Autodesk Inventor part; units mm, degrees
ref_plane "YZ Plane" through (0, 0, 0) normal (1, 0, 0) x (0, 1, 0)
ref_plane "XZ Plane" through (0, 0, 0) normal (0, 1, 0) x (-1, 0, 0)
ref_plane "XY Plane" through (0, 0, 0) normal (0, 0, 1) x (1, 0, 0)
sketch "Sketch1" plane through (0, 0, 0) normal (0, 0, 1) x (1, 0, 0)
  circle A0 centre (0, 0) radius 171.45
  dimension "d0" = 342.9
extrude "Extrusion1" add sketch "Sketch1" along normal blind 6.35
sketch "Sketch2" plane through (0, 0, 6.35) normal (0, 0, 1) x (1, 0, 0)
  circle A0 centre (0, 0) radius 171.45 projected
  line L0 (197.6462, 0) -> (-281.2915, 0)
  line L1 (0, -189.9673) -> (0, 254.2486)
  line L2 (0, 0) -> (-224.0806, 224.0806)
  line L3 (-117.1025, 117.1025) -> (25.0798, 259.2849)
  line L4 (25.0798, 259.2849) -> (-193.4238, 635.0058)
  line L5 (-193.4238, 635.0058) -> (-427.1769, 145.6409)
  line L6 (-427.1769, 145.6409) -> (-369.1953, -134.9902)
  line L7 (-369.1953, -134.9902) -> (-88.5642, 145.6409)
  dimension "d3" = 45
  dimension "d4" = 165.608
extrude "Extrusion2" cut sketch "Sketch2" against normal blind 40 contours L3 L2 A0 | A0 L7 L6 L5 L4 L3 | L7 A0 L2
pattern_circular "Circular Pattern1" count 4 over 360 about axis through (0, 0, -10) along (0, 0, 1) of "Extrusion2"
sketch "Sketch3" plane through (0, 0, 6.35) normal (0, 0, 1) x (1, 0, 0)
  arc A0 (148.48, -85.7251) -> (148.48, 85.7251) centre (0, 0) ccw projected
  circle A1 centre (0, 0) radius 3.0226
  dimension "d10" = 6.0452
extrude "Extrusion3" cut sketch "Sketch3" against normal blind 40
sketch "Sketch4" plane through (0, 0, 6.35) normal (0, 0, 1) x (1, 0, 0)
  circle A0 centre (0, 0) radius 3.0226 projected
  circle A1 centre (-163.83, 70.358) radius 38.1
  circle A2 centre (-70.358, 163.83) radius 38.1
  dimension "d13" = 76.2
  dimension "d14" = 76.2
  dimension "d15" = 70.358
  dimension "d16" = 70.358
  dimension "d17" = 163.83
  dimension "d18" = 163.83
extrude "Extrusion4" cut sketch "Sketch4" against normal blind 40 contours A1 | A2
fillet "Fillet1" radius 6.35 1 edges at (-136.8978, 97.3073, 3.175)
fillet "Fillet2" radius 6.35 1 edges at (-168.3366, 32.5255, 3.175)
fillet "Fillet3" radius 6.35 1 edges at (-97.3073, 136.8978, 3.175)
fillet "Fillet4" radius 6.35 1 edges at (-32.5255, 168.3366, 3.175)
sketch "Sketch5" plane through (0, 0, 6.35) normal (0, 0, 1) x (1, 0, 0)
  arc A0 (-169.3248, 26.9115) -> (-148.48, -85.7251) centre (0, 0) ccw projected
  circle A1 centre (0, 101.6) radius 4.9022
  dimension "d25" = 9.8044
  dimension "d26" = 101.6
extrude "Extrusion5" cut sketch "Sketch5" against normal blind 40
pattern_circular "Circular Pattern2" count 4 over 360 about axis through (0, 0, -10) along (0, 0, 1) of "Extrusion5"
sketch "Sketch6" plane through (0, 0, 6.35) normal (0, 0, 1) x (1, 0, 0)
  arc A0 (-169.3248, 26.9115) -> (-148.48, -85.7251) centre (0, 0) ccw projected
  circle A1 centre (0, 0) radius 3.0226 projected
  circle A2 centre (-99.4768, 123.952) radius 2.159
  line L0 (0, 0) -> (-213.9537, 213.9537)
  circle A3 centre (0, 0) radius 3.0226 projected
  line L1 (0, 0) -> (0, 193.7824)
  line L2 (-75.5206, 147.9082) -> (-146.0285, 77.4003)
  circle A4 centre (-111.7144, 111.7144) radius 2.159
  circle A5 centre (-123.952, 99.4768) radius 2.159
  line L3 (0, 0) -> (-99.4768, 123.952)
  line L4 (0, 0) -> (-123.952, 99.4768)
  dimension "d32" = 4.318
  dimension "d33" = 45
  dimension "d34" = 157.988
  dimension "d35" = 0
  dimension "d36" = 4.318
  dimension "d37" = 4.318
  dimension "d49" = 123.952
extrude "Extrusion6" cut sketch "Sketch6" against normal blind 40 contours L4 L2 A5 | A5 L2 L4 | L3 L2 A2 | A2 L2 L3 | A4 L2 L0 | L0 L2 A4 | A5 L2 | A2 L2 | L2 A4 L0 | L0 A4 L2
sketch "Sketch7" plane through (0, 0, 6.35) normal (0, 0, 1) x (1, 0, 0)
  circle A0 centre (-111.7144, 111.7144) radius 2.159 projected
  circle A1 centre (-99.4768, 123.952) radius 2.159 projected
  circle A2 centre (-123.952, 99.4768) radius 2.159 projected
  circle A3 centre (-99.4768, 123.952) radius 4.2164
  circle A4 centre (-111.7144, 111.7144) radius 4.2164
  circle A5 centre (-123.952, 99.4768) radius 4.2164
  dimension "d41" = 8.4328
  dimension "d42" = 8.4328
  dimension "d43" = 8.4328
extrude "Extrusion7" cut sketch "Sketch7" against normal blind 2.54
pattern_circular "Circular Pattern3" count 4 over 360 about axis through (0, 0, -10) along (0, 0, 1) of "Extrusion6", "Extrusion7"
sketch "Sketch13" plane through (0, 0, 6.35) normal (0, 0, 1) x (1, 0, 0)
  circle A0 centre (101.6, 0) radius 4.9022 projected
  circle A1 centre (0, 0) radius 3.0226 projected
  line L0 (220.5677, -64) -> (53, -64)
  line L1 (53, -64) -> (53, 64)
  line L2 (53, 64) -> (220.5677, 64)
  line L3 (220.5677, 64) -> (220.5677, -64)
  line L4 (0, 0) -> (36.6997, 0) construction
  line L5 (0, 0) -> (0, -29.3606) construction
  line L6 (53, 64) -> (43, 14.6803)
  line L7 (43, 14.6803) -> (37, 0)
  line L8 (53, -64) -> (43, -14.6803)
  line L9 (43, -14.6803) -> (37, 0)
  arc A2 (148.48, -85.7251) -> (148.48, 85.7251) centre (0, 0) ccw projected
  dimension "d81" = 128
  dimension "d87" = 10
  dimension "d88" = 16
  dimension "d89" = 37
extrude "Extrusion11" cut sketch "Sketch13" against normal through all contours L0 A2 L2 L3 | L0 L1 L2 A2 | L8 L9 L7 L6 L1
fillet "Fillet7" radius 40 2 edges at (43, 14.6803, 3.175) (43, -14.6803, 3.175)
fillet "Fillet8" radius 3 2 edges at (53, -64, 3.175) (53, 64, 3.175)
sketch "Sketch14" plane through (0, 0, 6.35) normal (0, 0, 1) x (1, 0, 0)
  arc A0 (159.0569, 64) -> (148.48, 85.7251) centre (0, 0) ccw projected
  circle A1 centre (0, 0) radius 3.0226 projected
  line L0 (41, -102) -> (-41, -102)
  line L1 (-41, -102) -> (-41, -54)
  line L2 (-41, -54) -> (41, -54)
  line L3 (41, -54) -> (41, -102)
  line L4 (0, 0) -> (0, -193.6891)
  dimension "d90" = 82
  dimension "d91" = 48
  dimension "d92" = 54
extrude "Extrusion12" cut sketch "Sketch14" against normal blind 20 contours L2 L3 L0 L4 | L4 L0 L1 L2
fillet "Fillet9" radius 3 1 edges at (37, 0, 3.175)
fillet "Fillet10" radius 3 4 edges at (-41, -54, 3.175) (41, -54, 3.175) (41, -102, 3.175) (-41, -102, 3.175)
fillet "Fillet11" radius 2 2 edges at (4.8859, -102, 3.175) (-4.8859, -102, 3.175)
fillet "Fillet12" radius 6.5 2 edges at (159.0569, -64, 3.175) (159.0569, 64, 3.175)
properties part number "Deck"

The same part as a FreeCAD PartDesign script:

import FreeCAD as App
import Part
import Sketcher

V = App.Vector
Q = App.Units.Quantity


def edges_at(feature, points):
    """Names of the edges that pass closest to the given points."""
    edges = feature.Shape.Edges
    near = lambda p: min(range(len(edges)), key=lambda i: edges[i].distToShape(Part.Vertex(*p))[0])
    return sorted({f"Edge{near(p) + 1}" for p in points})

doc = App.newDocument("Part")
body = doc.addObject("PartDesign::Body", "Body")

sketch1 = body.newObject("Sketcher::SketchObject", "Sketch")
sketch1.AttachmentSupport = (doc.getObject("XY_Plane"), [""])
sketch1.MapMode = "FlatFace"
sketch1.addGeometry(Part.Circle(V(0, 0, 0), V(0, 0, 1), 171.45), False)
sketch1.addConstraint([
    Sketcher.Constraint("Coincident", 0, 3, -1, 1),
    Sketcher.Constraint("Diameter", 0, Q("13.5 in")),
])
pad1 = body.newObject("PartDesign::Pad", "Pad")
pad1.Profile = sketch1
pad1.Length = Q("0.25 in")

sketch2 = body.newObject("Sketcher::SketchObject", "Sketch001")
sketch2.AttachmentSupport = (doc.getObject("XY_Plane"), [""])
sketch2.MapMode = "FlatFace"
sketch2.AttachmentOffset = App.Placement(V(0, 0, 0.25 * 25.4), App.Rotation())
sketch2.addGeometry([
    Part.LineSegment(V(25.0798, 259.2849, 0), V(-193.4238, 635.0058, 0)),
    Part.LineSegment(V(-193.4238, 635.0058, 0), V(-427.1769, 145.6409, 0)),
    Part.LineSegment(V(-427.1769, 145.6409, 0), V(-369.1953, -134.9902, 0)),
    Part.LineSegment(V(-369.1953, -134.9902, 0), V(-117.1025, 117.1025, 0)),
    Part.LineSegment(V(-117.1025, 117.1025, 0), V(25.0798, 259.2849, 0)),
], False)
sketch2.addConstraint([
    Sketcher.Constraint("Coincident", 0, 2, 1, 1),
    Sketcher.Constraint("Coincident", 1, 2, 2, 1),
    Sketcher.Constraint("Coincident", 2, 2, 3, 1),
    Sketcher.Constraint("Coincident", 3, 2, 4, 1),
    Sketcher.Constraint("Coincident", 4, 2, 0, 1),
    Sketcher.Constraint("Parallel", 3, 4),
    Sketcher.Constraint("Angle", 3, Q("45 deg")),
    Sketcher.Constraint("Angle", 0, Q("120.1805 deg")),
    Sketcher.Constraint("DistanceX", 1, 2, -1, 1, Q("16.818 in")),
    Sketcher.Constraint("DistanceX", 0, 2, -1, 1, Q("7.6151 in")),
    Sketcher.Constraint("DistanceY", -1, 1, 1, 2, Q("5.7339 in")),
    Sketcher.Constraint("DistanceX", -1, 1, 4, 2, Q("0.9874 in")),
    Sketcher.Constraint("DistanceY", 2, 2, 0, 2, Q("30.3148 in")),
    Sketcher.Constraint("DistanceY", 2, 2, 3, 2, Q("9.9249 in")),
    Sketcher.Constraint("Distance", 1, 542.327),
])
pocket1 = body.newObject("PartDesign::Pocket", "Pocket")
pocket1.Profile = sketch2
pocket1.Length = Q("1.5748031 in")
doc.recompute()

polarpattern = body.newObject("PartDesign::PolarPattern", "PolarPattern")
polarpattern.Originals = [pocket1]
polarpattern.Axis = (doc.getObject("Z_Axis"), [""])
polarpattern.Angle = 360
polarpattern.Occurrences = 4
body.Tip = polarpattern

sketch3 = body.newObject("Sketcher::SketchObject", "Sketch002")
sketch3.AttachmentSupport = (doc.getObject("XY_Plane"), [""])
sketch3.MapMode = "FlatFace"
sketch3.AttachmentOffset = App.Placement(V(0, 0, 0.25 * 25.4), App.Rotation())
sketch3.addGeometry(Part.Circle(V(0, 0, 0), V(0, 0, 1), 3.0226), False)
sketch3.addConstraint([
    Sketcher.Constraint("Coincident", 0, 3, -1, 1),
    Sketcher.Constraint("Diameter", 0, Q("0.238 in")),
])
pocket2 = body.newObject("PartDesign::Pocket", "Pocket001")
pocket2.Profile = sketch3
pocket2.Length = Q("1.5748031 in")

sketch4 = body.newObject("Sketcher::SketchObject", "Sketch003")
sketch4.AttachmentSupport = (doc.getObject("XY_Plane"), [""])
sketch4.MapMode = "FlatFace"
sketch4.AttachmentOffset = App.Placement(V(0, 0, 0.25 * 25.4), App.Rotation())
sketch4.addGeometry([
    Part.Circle(V(-163.83, 70.358, 0), V(0, 0, 1), 38.1),
    Part.Circle(V(-70.358, 163.83, 0), V(0, 0, 1), 38.1),
], False)
sketch4.addConstraint([
    Sketcher.Constraint("Equal", 0, 1),
    Sketcher.Constraint("Diameter", 0, Q("3 in")),
    Sketcher.Constraint("DistanceX", 0, 3, -1, 1, Q("6.45 in")),
    Sketcher.Constraint("DistanceY", -1, 1, 0, 3, Q("2.77 in")),
    Sketcher.Constraint("DistanceX", 1, 3, -1, 1, Q("2.77 in")),
    Sketcher.Constraint("DistanceY", -1, 1, 1, 3, Q("6.45 in")),
])
pocket3 = body.newObject("PartDesign::Pocket", "Pocket002")
pocket3.Profile = sketch4
pocket3.Length = Q("1.5748031 in")
doc.recompute()

fillet = body.newObject("PartDesign::Fillet", "Fillet")
fillet.Base = (pocket3, edges_at(pocket3, [(-136.898, 97.307, 3.175)]))
fillet.Radius = Q("0.25 in")
doc.recompute()

fillet2 = body.newObject("PartDesign::Fillet", "Fillet001")
fillet2.Base = (fillet, edges_at(fillet, [(-168.337, 32.526, 3.175)]))
fillet2.Radius = Q("0.25 in")
doc.recompute()

fillet3 = body.newObject("PartDesign::Fillet", "Fillet002")
fillet3.Base = (fillet2, edges_at(fillet2, [(-97.307, 136.898, 3.175)]))
fillet3.Radius = Q("0.25 in")
doc.recompute()

fillet4 = body.newObject("PartDesign::Fillet", "Fillet003")
fillet4.Base = (fillet3, edges_at(fillet3, [(-32.526, 168.337, 3.175)]))
fillet4.Radius = Q("0.25 in")

sketch5 = body.newObject("Sketcher::SketchObject", "Sketch004")
sketch5.AttachmentSupport = (doc.getObject("XY_Plane"), [""])
sketch5.MapMode = "FlatFace"
sketch5.AttachmentOffset = App.Placement(V(0, 0, 0.25 * 25.4), App.Rotation())
sketch5.addGeometry(Part.Circle(V(0, 101.6, 0), V(0, 0, 1), 4.9022), False)
sketch5.addConstraint([
    Sketcher.Constraint("PointOnObject", 0, 3, -2),
    Sketcher.Constraint("Diameter", 0, Q("0.386 in")),
    Sketcher.Constraint("DistanceY", -1, 1, 0, 3, Q("4 in")),
])
pocket4 = body.newObject("PartDesign::Pocket", "Pocket003")
pocket4.Profile = sketch5
pocket4.Length = Q("1.5748031 in")
doc.recompute()

polarpattern2 = body.newObject("PartDesign::PolarPattern", "PolarPattern001")
polarpattern2.Originals = [pocket4]
polarpattern2.Axis = (doc.getObject("Z_Axis"), [""])
polarpattern2.Angle = 360
polarpattern2.Occurrences = 4
body.Tip = polarpattern2

sketch6 = body.newObject("Sketcher::SketchObject", "Sketch005")
sketch6.AttachmentSupport = (doc.getObject("XY_Plane"), [""])
sketch6.MapMode = "FlatFace"
sketch6.AttachmentOffset = App.Placement(V(0, 0, 0.25 * 25.4), App.Rotation())
sketch6.addGeometry([
    Part.Circle(V(-123.952, 99.4768, 0), V(0, 0, 1), 2.159),
    Part.Circle(V(-99.4768, 123.952, 0), V(0, 0, 1), 2.159),
    Part.Circle(V(-111.7144, 111.7144, 0), V(0, 0, 1), 2.159),
], False)
sketch6.addConstraint([
    Sketcher.Constraint("Equal", 0, 1),
    Sketcher.Constraint("Equal", 1, 2),
    Sketcher.Constraint("Diameter", 0, Q("0.17 in")),
    Sketcher.Constraint("DistanceX", 0, 3, -1, 1, Q("4.88 in")),
    Sketcher.Constraint("DistanceY", -1, 1, 1, 3, Q("4.88 in")),
    Sketcher.Constraint("DistanceY", -1, 1, 0, 3, Q("3.9164 in")),
    Sketcher.Constraint("DistanceX", 1, 3, -1, 1, Q("3.9164 in")),
    Sketcher.Constraint("DistanceX", 2, 3, -1, 1, Q("4.3982 in")),
    Sketcher.Constraint("DistanceY", -1, 1, 2, 3, Q("4.3982 in")),
])
pocket5 = body.newObject("PartDesign::Pocket", "Pocket004")
pocket5.Profile = sketch6
pocket5.Length = Q("1.5748031 in")

sketch7 = body.newObject("Sketcher::SketchObject", "Sketch006")
sketch7.AttachmentSupport = (doc.getObject("XY_Plane"), [""])
sketch7.MapMode = "FlatFace"
sketch7.AttachmentOffset = App.Placement(V(0, 0, 0.25 * 25.4), App.Rotation())
sketch7.addGeometry([
    Part.Circle(V(-99.4768, 123.952, 0), V(0, 0, 1), 4.2164),
    Part.Circle(V(-99.4768, 123.952, 0), V(0, 0, 1), 2.159),
    Part.Circle(V(-111.7144, 111.7144, 0), V(0, 0, 1), 4.2164),
    Part.Circle(V(-111.7144, 111.7144, 0), V(0, 0, 1), 2.159),
    Part.Circle(V(-123.952, 99.4768, 0), V(0, 0, 1), 4.2164),
    Part.Circle(V(-123.952, 99.4768, 0), V(0, 0, 1), 2.159),
], False)
sketch7.addConstraint([
    Sketcher.Constraint("Coincident", 1, 3, 0, 3),
    Sketcher.Constraint("Coincident", 3, 3, 2, 3),
    Sketcher.Constraint("Coincident", 5, 3, 4, 3),
    Sketcher.Constraint("Equal", 0, 2),
    Sketcher.Constraint("Equal", 1, 3),
    Sketcher.Constraint("Equal", 2, 4),
    Sketcher.Constraint("Equal", 3, 5),
    Sketcher.Constraint("Diameter", 0, Q("0.332 in")),
    Sketcher.Constraint("Diameter", 1, Q("0.17 in")),
    Sketcher.Constraint("DistanceY", -1, 1, 0, 3, Q("4.88 in")),
    Sketcher.Constraint("DistanceX", 4, 3, -1, 1, Q("4.88 in")),
    Sketcher.Constraint("DistanceX", 0, 3, -1, 1, Q("3.9164 in")),
    Sketcher.Constraint("DistanceX", 2, 3, -1, 1, Q("4.3982 in")),
    Sketcher.Constraint("DistanceY", -1, 1, 2, 3, Q("4.3982 in")),
    Sketcher.Constraint("DistanceY", -1, 1, 4, 3, Q("3.9164 in")),
])
pocket6 = body.newObject("PartDesign::Pocket", "Pocket005")
pocket6.Profile = sketch7
pocket6.Length = Q("0.1 in")
doc.recompute()

polarpattern3 = body.newObject("PartDesign::PolarPattern", "PolarPattern002")
polarpattern3.Originals = [pocket5, pocket6]
polarpattern3.Axis = (doc.getObject("Z_Axis"), [""])
polarpattern3.Angle = 360
polarpattern3.Occurrences = 4
body.Tip = polarpattern3

sketch8 = body.newObject("Sketcher::SketchObject", "Sketch007")
sketch8.AttachmentSupport = (doc.getObject("XY_Plane"), [""])
sketch8.MapMode = "FlatFace"
sketch8.AttachmentOffset = App.Placement(V(0, 0, 0.25 * 25.4), App.Rotation())
sketch8.addGeometry([
    Part.LineSegment(V(220.5677, -64, 0), V(220.5677, 64, 0)),
    Part.LineSegment(V(220.5677, 64, 0), V(53, 64, 0)),
    Part.LineSegment(V(53, 64, 0), V(43, 14.6803, 0)),
    Part.LineSegment(V(43, 14.6803, 0), V(37, 0, 0)),
    Part.LineSegment(V(37, 0, 0), V(43, -14.6803, 0)),
    Part.LineSegment(V(43, -14.6803, 0), V(53, -64, 0)),
    Part.LineSegment(V(53, -64, 0), V(220.5677, -64, 0)),
    Part.Circle(V(101.6, 0, 0), V(0, 0, 1), 4.9022),
], False)
sketch8.addConstraint([
    Sketcher.Constraint("Coincident", 0, 2, 1, 1),
    Sketcher.Constraint("Coincident", 1, 2, 2, 1),
    Sketcher.Constraint("Coincident", 2, 2, 3, 1),
    Sketcher.Constraint("Coincident", 3, 2, 4, 1),
    Sketcher.Constraint("Coincident", 4, 2, 5, 1),
    Sketcher.Constraint("Coincident", 5, 2, 6, 1),
    Sketcher.Constraint("Coincident", 6, 2, 0, 1),
    Sketcher.Constraint("Vertical", 0),
    Sketcher.Constraint("Horizontal", 1),
    Sketcher.Constraint("Horizontal", 6),
    Sketcher.Constraint("Symmetric", 2, 2, 4, 2, -1),
    Sketcher.Constraint("Symmetric", 1, 2, 5, 2, -1),
    Sketcher.Constraint("PointOnObject", 7, 3, -1),
    Sketcher.Constraint("PointOnObject", 3, 2, -1),
    Sketcher.Constraint("Diameter", 7, Q("0.386 in")),
    Sketcher.Constraint("DistanceX", -1, 1, 7, 3, Q("4 in")),
    Sketcher.Constraint("DistanceY", 0, 1, 0, 2, 128.0),
    Sketcher.Constraint("DistanceX", -1, 1, 3, 2, Q("1.4567 in")),
    Sketcher.Constraint("DistanceX", 2, 2, 1, 2, Q("0.3937 in")),
    Sketcher.Constraint("Angle", 3, Q("-112.2304 deg")),
    Sketcher.Constraint("DistanceX", 3, 2, 1, 2, 16.0),
    Sketcher.Constraint("DistanceX", 1, 2, 1, 1, 167.5677),
])
pocket7 = body.newObject("PartDesign::Pocket", "Pocket006")
pocket7.Profile = sketch8
pocket7.Type = "ThroughAll"
doc.recompute()

fillet5 = body.newObject("PartDesign::Fillet", "Fillet004")
fillet5.Base = (pocket7, edges_at(pocket7, [(43, 14.68, 3.175), (43, -14.68, 3.175)]))
fillet5.Radius = Q("1.5748031 in")
doc.recompute()

fillet6 = body.newObject("PartDesign::Fillet", "Fillet005")
fillet6.Base = (fillet5, edges_at(fillet5, [(53, -64, 3.175), (53, 64, 3.175)]))
fillet6.Radius = Q("0.1181102 in")

sketch9 = body.newObject("Sketcher::SketchObject", "Sketch008")
sketch9.AttachmentSupport = (doc.getObject("XY_Plane"), [""])
sketch9.MapMode = "FlatFace"
sketch9.AttachmentOffset = App.Placement(V(0, 0, 0.25 * 25.4), App.Rotation())
sketch9.addGeometry([
    Part.LineSegment(V(41, -54, 0), V(-41, -54, 0)),
    Part.LineSegment(V(-41, -54, 0), V(-41, -102, 0)),
    Part.LineSegment(V(-41, -102, 0), V(41, -102, 0)),
    Part.LineSegment(V(41, -102, 0), V(41, -54, 0)),
], False)
sketch9.addConstraint([
    Sketcher.Constraint("Coincident", 0, 2, 1, 1),
    Sketcher.Constraint("Coincident", 1, 2, 2, 1),
    Sketcher.Constraint("Coincident", 2, 2, 3, 1),
    Sketcher.Constraint("Coincident", 3, 2, 0, 1),
    Sketcher.Constraint("Horizontal", 0),
    Sketcher.Constraint("Vertical", 1),
    Sketcher.Constraint("Horizontal", 2),
    Sketcher.Constraint("Vertical", 3),
    Sketcher.Constraint("DistanceX", 0, 2, 0, 1, 82.0),
    Sketcher.Constraint("DistanceY", 1, 2, 1, 1, 48.0),
    Sketcher.Constraint("DistanceY", 0, 2, -1, 1, 54.0),
    Sketcher.Constraint("DistanceX", 0, 2, -1, 1, 41.0),
])
pocket8 = body.newObject("PartDesign::Pocket", "Pocket007")
pocket8.Profile = sketch9
pocket8.Length = Q("0.7874016 in")
doc.recompute()

fillet7 = body.newObject("PartDesign::Fillet", "Fillet006")
fillet7.Base = (pocket8, edges_at(pocket8, [(37, 0, 3.175)]))
fillet7.Radius = Q("0.1181102 in")
doc.recompute()

fillet8 = body.newObject("PartDesign::Fillet", "Fillet007")
fillet8.Base = (fillet7, edges_at(fillet7, [
    (-41, -54, 3.175),
    (41, -54, 3.175),
    (41, -102, 3.175),
    (-41, -102, 3.175),
]))
fillet8.Radius = Q("0.1181102 in")
doc.recompute()

fillet9 = body.newObject("PartDesign::Fillet", "Fillet008")
fillet9.Base = (fillet8, edges_at(fillet8, [(4.886, -102, 3.175), (-4.886, -102, 3.175)]))
fillet9.Radius = 2
doc.recompute()

fillet10 = body.newObject("PartDesign::Fillet", "Fillet009")
fillet10.Base = (fillet9, edges_at(fillet9, [(159.057, -64, 3.175), (159.057, 64, 3.175)]))
fillet10.Radius = Q("0.2559055 in")

doc.recompute()
